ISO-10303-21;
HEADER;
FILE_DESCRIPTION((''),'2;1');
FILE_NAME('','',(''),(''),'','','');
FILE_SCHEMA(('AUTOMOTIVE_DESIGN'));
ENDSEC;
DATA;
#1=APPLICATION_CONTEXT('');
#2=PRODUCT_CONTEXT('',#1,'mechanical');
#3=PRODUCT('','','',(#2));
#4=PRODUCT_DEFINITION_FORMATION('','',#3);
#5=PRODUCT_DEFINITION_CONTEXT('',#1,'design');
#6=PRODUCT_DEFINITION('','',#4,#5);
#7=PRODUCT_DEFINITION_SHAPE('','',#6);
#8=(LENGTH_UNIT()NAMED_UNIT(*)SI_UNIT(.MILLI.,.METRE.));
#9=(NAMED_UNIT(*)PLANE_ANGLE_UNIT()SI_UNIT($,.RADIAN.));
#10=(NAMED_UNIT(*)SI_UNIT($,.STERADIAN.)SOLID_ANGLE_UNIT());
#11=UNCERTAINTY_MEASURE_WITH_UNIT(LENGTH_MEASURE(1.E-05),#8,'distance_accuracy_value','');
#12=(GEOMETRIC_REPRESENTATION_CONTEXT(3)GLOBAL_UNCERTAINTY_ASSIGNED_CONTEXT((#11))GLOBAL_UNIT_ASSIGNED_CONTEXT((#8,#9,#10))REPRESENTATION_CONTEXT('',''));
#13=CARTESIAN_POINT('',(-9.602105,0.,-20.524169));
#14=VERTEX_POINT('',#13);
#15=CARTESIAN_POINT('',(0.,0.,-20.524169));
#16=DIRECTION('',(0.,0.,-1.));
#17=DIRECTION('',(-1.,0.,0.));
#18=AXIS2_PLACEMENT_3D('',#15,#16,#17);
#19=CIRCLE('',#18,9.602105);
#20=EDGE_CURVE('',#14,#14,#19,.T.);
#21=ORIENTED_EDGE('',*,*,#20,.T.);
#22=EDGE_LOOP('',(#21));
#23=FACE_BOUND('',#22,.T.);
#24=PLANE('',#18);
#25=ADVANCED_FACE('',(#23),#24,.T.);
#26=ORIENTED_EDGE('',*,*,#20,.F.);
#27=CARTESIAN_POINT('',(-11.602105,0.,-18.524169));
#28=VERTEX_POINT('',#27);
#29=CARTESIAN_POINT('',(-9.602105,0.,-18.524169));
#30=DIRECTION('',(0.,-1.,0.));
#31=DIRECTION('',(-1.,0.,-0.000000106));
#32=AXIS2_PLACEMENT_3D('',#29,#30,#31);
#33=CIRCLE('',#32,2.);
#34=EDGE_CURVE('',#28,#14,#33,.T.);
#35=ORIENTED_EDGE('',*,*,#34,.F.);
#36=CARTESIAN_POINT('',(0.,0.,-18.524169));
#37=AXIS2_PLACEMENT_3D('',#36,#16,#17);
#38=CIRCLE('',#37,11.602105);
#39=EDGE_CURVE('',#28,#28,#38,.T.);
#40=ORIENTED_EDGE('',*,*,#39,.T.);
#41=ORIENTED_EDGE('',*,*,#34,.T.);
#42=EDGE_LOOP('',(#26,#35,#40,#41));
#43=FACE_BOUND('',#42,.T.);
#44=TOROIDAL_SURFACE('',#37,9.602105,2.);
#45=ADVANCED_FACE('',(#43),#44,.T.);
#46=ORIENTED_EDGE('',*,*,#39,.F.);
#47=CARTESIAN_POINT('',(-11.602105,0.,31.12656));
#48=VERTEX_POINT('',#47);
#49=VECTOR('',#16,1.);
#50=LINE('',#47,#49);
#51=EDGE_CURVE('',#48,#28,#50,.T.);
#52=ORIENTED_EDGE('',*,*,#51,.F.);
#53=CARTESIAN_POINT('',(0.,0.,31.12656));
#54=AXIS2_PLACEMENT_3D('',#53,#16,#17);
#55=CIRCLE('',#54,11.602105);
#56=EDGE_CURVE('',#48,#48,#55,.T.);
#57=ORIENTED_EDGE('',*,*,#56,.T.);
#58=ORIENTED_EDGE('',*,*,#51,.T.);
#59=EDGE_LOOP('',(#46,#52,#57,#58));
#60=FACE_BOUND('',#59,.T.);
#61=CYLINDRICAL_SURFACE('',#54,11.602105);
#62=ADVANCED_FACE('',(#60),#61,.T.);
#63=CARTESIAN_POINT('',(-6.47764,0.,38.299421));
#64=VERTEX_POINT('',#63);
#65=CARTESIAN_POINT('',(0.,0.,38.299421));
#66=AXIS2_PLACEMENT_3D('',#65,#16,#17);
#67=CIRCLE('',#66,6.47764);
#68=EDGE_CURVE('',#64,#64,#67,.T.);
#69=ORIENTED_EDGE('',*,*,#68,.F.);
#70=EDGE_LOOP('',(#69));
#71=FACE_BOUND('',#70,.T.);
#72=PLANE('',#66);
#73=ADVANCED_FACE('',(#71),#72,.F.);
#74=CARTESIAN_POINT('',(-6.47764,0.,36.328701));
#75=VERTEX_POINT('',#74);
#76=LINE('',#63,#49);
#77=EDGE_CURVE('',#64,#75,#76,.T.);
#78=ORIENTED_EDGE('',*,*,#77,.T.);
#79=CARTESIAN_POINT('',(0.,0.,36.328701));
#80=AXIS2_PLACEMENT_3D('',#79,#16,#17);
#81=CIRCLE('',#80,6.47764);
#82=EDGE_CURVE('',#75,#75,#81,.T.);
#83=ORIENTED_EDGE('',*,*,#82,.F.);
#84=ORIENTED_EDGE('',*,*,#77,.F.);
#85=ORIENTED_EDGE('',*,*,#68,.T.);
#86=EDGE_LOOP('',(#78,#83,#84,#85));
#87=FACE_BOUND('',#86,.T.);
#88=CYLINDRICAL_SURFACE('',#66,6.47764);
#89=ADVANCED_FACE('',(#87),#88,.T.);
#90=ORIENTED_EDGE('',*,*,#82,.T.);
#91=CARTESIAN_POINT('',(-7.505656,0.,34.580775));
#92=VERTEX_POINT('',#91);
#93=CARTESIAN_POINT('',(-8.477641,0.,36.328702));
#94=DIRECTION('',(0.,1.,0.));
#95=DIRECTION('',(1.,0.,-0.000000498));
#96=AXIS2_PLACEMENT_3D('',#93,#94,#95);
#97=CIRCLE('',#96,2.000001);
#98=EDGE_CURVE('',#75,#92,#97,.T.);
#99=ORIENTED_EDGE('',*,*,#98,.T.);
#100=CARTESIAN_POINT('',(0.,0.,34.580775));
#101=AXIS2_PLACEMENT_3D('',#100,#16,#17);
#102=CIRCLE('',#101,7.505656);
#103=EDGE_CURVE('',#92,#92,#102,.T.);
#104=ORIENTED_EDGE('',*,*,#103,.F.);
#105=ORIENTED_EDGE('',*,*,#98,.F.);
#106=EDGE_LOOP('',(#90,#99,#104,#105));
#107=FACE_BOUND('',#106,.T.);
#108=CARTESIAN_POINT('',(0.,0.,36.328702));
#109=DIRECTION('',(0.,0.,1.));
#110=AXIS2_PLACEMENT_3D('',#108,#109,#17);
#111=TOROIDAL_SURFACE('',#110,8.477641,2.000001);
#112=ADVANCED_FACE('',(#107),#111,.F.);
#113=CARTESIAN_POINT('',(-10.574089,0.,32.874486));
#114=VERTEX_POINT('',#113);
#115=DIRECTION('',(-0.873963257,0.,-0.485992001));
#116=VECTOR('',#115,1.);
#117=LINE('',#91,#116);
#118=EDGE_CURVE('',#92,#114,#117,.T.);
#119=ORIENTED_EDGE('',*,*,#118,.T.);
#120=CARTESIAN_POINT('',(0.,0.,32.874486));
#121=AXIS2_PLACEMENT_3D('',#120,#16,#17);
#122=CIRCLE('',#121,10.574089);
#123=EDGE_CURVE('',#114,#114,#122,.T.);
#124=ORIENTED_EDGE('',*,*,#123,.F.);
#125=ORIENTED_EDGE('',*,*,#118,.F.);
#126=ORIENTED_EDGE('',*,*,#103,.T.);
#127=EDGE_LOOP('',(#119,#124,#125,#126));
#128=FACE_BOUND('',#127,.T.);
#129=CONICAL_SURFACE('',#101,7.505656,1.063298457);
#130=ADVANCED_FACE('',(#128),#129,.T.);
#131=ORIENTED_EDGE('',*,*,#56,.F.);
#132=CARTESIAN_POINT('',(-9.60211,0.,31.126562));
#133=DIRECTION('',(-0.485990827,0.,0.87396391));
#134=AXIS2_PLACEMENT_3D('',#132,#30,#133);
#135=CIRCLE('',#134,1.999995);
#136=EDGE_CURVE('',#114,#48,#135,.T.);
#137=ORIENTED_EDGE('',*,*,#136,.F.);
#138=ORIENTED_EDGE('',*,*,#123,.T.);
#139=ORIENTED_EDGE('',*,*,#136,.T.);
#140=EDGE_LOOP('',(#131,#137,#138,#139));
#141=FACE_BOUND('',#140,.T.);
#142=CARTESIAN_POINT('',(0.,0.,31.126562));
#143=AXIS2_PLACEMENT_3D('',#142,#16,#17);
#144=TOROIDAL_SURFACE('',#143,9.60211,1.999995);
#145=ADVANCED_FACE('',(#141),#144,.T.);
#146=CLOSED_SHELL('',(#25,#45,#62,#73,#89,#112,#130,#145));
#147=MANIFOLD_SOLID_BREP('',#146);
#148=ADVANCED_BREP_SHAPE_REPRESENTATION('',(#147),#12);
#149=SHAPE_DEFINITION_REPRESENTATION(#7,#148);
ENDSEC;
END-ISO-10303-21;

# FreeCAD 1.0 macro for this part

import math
import FreeCAD as App
import Part
import Sketcher
Q = App.Units.Quantity

doc = App.newDocument("Part")
body = doc.addObject("PartDesign::Body", "Body")

# Sketch on XZ plane
sketch1 = body.newObject("Sketcher::SketchObject", "Sketch")
sketch1.AttachmentSupport = (doc.getObject("XZ_Plane"), [""])
sketch1.MapMode = "FlatFace"
sketch1.addGeometry([
    Part.LineSegment(App.Vector(-9.6, -20.5, 0), App.Vector(0, -20.5, 0)),  # 0
    Part.LineSegment(App.Vector(0, -20.5, 0), App.Vector(0, 38.3, 0)),  # 1
    Part.LineSegment(App.Vector(0, 38.3, 0), App.Vector(-6.5, 38.3, 0)),  # 2
    Part.LineSegment(App.Vector(-6.5, 38.3, 0), App.Vector(-6.5, 36.3, 0)),  # 3
    Part.ArcOfCircle(Part.Circle(App.Vector(-8.5, 36.3, 0), App.Vector(0, 0, 1), 2), math.radians(-61), math.radians(0)),  # 4
    Part.LineSegment(App.Vector(-7.5, 34.6, 0), App.Vector(-10.6, 32.9, 0)),  # 5
    Part.ArcOfCircle(Part.Circle(App.Vector(-9.6, 31.1, 0), App.Vector(0, 0, 1), 2), math.radians(119), math.radians(180)),  # 6
    Part.LineSegment(App.Vector(-11.6, 31.1, 0), App.Vector(-11.6, -18.5, 0)),  # 7
    Part.ArcOfCircle(Part.Circle(App.Vector(-9.6, -18.5, 0), App.Vector(0, 0, 1), 2), math.radians(-180), math.radians(-90)),  # 8
], False)
sketch1.addConstraint([
    Sketcher.Constraint("Coincident", 0, 2, 1, 1),
    Sketcher.Constraint("Coincident", 1, 2, 2, 1),
    Sketcher.Constraint("Coincident", 2, 2, 3, 1),
    Sketcher.Constraint("Tangent", 3, 2, 4, 2),
    Sketcher.Constraint("Tangent", 4, 1, 5, 1),
    Sketcher.Constraint("Tangent", 5, 2, 6, 1),
    Sketcher.Constraint("Tangent", 6, 2, 7, 1),
    Sketcher.Constraint("Tangent", 7, 2, 8, 1),
    Sketcher.Constraint("Tangent", 8, 2, 0, 1),
    Sketcher.Constraint("Horizontal", 0),
    Sketcher.Constraint("Vertical", 1),
    Sketcher.Constraint("Horizontal", 2),
    Sketcher.Constraint("Vertical", 3),
    Sketcher.Constraint("Vertical", 7),
    Sketcher.Constraint("Equal", 4, 8),
    Sketcher.Constraint("PointOnObject", 0, 2, -2),
    Sketcher.Constraint("Radius", 4, Q("2.000001 mm")),
    Sketcher.Constraint("Radius", 6, Q("1.999995 mm")),
    Sketcher.Constraint("DistanceX", 2, 2, 2, 1, Q("6.47764 mm")),
    Sketcher.Constraint("DistanceY", 1, 1, 1, 2, Q("58.82359 mm")),
    Sketcher.Constraint("DistanceY", 3, 2, 3, 1, Q("1.97072 mm")),
    Sketcher.Constraint("DistanceY", 7, 2, 7, 1, Q("49.650729 mm")),
    Sketcher.Constraint("DistanceY", -1, 1, 4, 3, Q("36.328702 mm")),
    Sketcher.Constraint("Distance", 5, Q("3.510941 mm")),
])
revolution = body.newObject("PartDesign::Revolution", "Revolution")
revolution.Profile = sketch1
revolution.ReferenceAxis = (sketch1, ["V_Axis"])
revolution.Angle = 360

doc.recompute()
